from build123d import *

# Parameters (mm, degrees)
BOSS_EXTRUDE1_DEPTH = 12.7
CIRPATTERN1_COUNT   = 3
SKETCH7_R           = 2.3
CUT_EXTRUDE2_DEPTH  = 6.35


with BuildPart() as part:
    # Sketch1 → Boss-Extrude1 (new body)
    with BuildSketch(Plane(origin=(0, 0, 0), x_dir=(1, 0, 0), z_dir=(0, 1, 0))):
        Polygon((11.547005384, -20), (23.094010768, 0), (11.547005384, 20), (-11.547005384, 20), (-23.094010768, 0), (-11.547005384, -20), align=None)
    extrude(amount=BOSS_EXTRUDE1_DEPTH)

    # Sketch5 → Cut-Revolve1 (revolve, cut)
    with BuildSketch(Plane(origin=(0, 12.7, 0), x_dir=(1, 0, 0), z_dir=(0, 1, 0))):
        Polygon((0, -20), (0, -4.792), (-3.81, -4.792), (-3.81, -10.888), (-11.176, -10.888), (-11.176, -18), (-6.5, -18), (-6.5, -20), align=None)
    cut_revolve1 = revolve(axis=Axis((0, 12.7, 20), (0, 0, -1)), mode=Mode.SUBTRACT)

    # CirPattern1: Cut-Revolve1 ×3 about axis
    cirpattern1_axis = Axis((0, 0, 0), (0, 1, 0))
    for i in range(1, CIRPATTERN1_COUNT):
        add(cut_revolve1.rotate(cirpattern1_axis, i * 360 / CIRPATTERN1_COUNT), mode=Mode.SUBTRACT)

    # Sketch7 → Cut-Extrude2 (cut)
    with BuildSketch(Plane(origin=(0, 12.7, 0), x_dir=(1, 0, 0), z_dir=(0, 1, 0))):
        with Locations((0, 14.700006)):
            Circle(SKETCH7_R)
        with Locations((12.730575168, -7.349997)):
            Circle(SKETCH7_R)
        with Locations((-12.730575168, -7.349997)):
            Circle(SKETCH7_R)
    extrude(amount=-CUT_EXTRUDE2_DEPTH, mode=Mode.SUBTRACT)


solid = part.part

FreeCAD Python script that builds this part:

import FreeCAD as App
import Part
import Sketcher
from FreeCAD import Vector
Q = App.Units.Quantity


def add_polygon(sketch, points):
    """Adds a closed chain of lines whose ends are joined by coincident constraints."""
    first, n = sketch.GeometryCount, len(points)
    for a, b in zip(points, points[1:] + points[:1]):
        sketch.addGeometry(Part.LineSegment(App.Vector(*a, 0), App.Vector(*b, 0)), False)
    for i in range(n):
        sketch.addConstraint(Sketcher.Constraint("Coincident", first + i, 2, first + (i + 1) % n, 1))

doc = App.newDocument("Part")
body = doc.addObject("PartDesign::Body", "Body")

# Sketch on XZ plane
sketch1 = body.newObject("Sketcher::SketchObject", "Sketch")
sketch1.AttachmentSupport = (doc.getObject("XZ_Plane"), [""])
sketch1.MapMode = "FlatFace"
add_polygon(sketch1, [(12, 20), (23, 0), (12, -20), (-12, -20), (-23, 0), (-12, 20)])  # lines 0-5
sketch1.addConstraint([
    Sketcher.Constraint("Horizontal", 2),
    Sketcher.Constraint("Horizontal", 5),
    Sketcher.Constraint("Symmetric", 0, 2, 3, 2, -1, 1),
    Sketcher.Constraint("Symmetric", 1, 2, 4, 2, -1, 1),
    Sketcher.Constraint("PointOnObject", 0, 2, -1),
    Sketcher.Constraint("Parallel", 0, 3),
    Sketcher.Constraint("Vertical", 2, 2, 4, 2),
    Sketcher.Constraint("Angle", 0, Q("-60 deg")),
    Sketcher.Constraint("DistanceX", 2, 2, 2, 1, 23.094011),
    Sketcher.Constraint("DistanceY", 1, 2, -1, 1, 20.0),
])
pad1 = body.newObject("PartDesign::Pad", "Pad")
pad1.Profile = sketch1
pad1.Length = Q("0.5 in")
pad1.Reversed = True

# Sketch on XZ plane
sketch2 = body.newObject("Sketcher::SketchObject", "Sketch001")
sketch2.AttachmentSupport = (doc.getObject("XZ_Plane"), [""])
sketch2.MapMode = "FlatFace"
sketch2.AttachmentOffset = App.Placement(Vector(0, 0, -0.5 * 25.4), App.Rotation())
add_polygon(sketch2, [(0, 20), (0, 4.8), (-3.8, 4.8), (-3.8, 10.9), (-11.2, 10.9), (-11.2, 18), (-6.5, 18), (-6.5, 20)])  # lines 0-7
sketch2.addConstraint([
    Sketcher.Constraint("Vertical", 0),
    Sketcher.Constraint("Horizontal", 1),
    Sketcher.Constraint("Vertical", 2),
    Sketcher.Constraint("Horizontal", 3),
    Sketcher.Constraint("Vertical", 4),
    Sketcher.Constraint("Horizontal", 5),
    Sketcher.Constraint("Vertical", 6),
    Sketcher.Constraint("Horizontal", 7),
    Sketcher.Constraint("PointOnObject", 0, 2, -2),
    Sketcher.Constraint("DistanceX", 1, 2, 1, 1, Q("0.15 in")),
    Sketcher.Constraint("DistanceX", 3, 2, 3, 1, Q("0.29 in")),
    Sketcher.Constraint("DistanceY", 2, 1, 2, 2, Q("0.24 in")),
    Sketcher.Constraint("DistanceY", 4, 1, 4, 2, Q("0.28 in")),
    Sketcher.Constraint("DistanceX", 5, 1, 5, 2, 4.676),
    Sketcher.Constraint("DistanceY", 0, 2, 0, 1, 15.208),
    Sketcher.Constraint("DistanceY", -1, 1, 0, 2, 4.792),
])
groove = body.newObject("PartDesign::Groove", "Groove")
groove.Profile = sketch2
groove.ReferenceAxis = (sketch2, ["V_Axis"])
groove.Angle = 360
doc.recompute()

polarpattern = body.newObject("PartDesign::PolarPattern", "PolarPattern")
polarpattern.Originals = [groove]
polarpattern.Axis = (doc.getObject("Y_Axis"), [""])
polarpattern.Angle = 360
polarpattern.Occurrences = 3
body.Tip = polarpattern

# Sketch on XZ plane
sketch3 = body.newObject("Sketcher::SketchObject", "Sketch002")
sketch3.AttachmentSupport = (doc.getObject("XZ_Plane"), [""])
sketch3.MapMode = "FlatFace"
sketch3.AttachmentOffset = App.Placement(Vector(0, 0, -0.5 * 25.4), App.Rotation())
sketch3.addGeometry([
    Part.Circle(Vector(0, -14.7, 0), Vector(0, 0, 1), 2.3),
    Part.Circle(Vector(12.7, 7.3, 0), Vector(0, 0, 1), 2.3),
    Part.Circle(Vector(-12.7, 7.3, 0), Vector(0, 0, 1), 2.3),
], False)
sketch3.addConstraint([
    Sketcher.Constraint("Equal", 0, 1),
    Sketcher.Constraint("Equal", 1, 2),
    Sketcher.Constraint("Symmetric", 1, 3, 2, 3, -2),
    Sketcher.Constraint("PointOnObject", 0, 3, -2),
    Sketcher.Constraint("Diameter", 0, 4.6),
    Sketcher.Constraint("DistanceX", 2, 3, 1, 3, 25.46115),
    Sketcher.Constraint("DistanceY", 0, 3, -1, 1, 14.700006),
    Sketcher.Constraint("DistanceY", -1, 1, 1, 3, 7.349997),
])
pocket1 = body.newObject("PartDesign::Pocket", "Pocket")
pocket1.Profile = sketch3
pocket1.Length = Q("0.25 in")
pocket1.Reversed = True

doc.recompute()
